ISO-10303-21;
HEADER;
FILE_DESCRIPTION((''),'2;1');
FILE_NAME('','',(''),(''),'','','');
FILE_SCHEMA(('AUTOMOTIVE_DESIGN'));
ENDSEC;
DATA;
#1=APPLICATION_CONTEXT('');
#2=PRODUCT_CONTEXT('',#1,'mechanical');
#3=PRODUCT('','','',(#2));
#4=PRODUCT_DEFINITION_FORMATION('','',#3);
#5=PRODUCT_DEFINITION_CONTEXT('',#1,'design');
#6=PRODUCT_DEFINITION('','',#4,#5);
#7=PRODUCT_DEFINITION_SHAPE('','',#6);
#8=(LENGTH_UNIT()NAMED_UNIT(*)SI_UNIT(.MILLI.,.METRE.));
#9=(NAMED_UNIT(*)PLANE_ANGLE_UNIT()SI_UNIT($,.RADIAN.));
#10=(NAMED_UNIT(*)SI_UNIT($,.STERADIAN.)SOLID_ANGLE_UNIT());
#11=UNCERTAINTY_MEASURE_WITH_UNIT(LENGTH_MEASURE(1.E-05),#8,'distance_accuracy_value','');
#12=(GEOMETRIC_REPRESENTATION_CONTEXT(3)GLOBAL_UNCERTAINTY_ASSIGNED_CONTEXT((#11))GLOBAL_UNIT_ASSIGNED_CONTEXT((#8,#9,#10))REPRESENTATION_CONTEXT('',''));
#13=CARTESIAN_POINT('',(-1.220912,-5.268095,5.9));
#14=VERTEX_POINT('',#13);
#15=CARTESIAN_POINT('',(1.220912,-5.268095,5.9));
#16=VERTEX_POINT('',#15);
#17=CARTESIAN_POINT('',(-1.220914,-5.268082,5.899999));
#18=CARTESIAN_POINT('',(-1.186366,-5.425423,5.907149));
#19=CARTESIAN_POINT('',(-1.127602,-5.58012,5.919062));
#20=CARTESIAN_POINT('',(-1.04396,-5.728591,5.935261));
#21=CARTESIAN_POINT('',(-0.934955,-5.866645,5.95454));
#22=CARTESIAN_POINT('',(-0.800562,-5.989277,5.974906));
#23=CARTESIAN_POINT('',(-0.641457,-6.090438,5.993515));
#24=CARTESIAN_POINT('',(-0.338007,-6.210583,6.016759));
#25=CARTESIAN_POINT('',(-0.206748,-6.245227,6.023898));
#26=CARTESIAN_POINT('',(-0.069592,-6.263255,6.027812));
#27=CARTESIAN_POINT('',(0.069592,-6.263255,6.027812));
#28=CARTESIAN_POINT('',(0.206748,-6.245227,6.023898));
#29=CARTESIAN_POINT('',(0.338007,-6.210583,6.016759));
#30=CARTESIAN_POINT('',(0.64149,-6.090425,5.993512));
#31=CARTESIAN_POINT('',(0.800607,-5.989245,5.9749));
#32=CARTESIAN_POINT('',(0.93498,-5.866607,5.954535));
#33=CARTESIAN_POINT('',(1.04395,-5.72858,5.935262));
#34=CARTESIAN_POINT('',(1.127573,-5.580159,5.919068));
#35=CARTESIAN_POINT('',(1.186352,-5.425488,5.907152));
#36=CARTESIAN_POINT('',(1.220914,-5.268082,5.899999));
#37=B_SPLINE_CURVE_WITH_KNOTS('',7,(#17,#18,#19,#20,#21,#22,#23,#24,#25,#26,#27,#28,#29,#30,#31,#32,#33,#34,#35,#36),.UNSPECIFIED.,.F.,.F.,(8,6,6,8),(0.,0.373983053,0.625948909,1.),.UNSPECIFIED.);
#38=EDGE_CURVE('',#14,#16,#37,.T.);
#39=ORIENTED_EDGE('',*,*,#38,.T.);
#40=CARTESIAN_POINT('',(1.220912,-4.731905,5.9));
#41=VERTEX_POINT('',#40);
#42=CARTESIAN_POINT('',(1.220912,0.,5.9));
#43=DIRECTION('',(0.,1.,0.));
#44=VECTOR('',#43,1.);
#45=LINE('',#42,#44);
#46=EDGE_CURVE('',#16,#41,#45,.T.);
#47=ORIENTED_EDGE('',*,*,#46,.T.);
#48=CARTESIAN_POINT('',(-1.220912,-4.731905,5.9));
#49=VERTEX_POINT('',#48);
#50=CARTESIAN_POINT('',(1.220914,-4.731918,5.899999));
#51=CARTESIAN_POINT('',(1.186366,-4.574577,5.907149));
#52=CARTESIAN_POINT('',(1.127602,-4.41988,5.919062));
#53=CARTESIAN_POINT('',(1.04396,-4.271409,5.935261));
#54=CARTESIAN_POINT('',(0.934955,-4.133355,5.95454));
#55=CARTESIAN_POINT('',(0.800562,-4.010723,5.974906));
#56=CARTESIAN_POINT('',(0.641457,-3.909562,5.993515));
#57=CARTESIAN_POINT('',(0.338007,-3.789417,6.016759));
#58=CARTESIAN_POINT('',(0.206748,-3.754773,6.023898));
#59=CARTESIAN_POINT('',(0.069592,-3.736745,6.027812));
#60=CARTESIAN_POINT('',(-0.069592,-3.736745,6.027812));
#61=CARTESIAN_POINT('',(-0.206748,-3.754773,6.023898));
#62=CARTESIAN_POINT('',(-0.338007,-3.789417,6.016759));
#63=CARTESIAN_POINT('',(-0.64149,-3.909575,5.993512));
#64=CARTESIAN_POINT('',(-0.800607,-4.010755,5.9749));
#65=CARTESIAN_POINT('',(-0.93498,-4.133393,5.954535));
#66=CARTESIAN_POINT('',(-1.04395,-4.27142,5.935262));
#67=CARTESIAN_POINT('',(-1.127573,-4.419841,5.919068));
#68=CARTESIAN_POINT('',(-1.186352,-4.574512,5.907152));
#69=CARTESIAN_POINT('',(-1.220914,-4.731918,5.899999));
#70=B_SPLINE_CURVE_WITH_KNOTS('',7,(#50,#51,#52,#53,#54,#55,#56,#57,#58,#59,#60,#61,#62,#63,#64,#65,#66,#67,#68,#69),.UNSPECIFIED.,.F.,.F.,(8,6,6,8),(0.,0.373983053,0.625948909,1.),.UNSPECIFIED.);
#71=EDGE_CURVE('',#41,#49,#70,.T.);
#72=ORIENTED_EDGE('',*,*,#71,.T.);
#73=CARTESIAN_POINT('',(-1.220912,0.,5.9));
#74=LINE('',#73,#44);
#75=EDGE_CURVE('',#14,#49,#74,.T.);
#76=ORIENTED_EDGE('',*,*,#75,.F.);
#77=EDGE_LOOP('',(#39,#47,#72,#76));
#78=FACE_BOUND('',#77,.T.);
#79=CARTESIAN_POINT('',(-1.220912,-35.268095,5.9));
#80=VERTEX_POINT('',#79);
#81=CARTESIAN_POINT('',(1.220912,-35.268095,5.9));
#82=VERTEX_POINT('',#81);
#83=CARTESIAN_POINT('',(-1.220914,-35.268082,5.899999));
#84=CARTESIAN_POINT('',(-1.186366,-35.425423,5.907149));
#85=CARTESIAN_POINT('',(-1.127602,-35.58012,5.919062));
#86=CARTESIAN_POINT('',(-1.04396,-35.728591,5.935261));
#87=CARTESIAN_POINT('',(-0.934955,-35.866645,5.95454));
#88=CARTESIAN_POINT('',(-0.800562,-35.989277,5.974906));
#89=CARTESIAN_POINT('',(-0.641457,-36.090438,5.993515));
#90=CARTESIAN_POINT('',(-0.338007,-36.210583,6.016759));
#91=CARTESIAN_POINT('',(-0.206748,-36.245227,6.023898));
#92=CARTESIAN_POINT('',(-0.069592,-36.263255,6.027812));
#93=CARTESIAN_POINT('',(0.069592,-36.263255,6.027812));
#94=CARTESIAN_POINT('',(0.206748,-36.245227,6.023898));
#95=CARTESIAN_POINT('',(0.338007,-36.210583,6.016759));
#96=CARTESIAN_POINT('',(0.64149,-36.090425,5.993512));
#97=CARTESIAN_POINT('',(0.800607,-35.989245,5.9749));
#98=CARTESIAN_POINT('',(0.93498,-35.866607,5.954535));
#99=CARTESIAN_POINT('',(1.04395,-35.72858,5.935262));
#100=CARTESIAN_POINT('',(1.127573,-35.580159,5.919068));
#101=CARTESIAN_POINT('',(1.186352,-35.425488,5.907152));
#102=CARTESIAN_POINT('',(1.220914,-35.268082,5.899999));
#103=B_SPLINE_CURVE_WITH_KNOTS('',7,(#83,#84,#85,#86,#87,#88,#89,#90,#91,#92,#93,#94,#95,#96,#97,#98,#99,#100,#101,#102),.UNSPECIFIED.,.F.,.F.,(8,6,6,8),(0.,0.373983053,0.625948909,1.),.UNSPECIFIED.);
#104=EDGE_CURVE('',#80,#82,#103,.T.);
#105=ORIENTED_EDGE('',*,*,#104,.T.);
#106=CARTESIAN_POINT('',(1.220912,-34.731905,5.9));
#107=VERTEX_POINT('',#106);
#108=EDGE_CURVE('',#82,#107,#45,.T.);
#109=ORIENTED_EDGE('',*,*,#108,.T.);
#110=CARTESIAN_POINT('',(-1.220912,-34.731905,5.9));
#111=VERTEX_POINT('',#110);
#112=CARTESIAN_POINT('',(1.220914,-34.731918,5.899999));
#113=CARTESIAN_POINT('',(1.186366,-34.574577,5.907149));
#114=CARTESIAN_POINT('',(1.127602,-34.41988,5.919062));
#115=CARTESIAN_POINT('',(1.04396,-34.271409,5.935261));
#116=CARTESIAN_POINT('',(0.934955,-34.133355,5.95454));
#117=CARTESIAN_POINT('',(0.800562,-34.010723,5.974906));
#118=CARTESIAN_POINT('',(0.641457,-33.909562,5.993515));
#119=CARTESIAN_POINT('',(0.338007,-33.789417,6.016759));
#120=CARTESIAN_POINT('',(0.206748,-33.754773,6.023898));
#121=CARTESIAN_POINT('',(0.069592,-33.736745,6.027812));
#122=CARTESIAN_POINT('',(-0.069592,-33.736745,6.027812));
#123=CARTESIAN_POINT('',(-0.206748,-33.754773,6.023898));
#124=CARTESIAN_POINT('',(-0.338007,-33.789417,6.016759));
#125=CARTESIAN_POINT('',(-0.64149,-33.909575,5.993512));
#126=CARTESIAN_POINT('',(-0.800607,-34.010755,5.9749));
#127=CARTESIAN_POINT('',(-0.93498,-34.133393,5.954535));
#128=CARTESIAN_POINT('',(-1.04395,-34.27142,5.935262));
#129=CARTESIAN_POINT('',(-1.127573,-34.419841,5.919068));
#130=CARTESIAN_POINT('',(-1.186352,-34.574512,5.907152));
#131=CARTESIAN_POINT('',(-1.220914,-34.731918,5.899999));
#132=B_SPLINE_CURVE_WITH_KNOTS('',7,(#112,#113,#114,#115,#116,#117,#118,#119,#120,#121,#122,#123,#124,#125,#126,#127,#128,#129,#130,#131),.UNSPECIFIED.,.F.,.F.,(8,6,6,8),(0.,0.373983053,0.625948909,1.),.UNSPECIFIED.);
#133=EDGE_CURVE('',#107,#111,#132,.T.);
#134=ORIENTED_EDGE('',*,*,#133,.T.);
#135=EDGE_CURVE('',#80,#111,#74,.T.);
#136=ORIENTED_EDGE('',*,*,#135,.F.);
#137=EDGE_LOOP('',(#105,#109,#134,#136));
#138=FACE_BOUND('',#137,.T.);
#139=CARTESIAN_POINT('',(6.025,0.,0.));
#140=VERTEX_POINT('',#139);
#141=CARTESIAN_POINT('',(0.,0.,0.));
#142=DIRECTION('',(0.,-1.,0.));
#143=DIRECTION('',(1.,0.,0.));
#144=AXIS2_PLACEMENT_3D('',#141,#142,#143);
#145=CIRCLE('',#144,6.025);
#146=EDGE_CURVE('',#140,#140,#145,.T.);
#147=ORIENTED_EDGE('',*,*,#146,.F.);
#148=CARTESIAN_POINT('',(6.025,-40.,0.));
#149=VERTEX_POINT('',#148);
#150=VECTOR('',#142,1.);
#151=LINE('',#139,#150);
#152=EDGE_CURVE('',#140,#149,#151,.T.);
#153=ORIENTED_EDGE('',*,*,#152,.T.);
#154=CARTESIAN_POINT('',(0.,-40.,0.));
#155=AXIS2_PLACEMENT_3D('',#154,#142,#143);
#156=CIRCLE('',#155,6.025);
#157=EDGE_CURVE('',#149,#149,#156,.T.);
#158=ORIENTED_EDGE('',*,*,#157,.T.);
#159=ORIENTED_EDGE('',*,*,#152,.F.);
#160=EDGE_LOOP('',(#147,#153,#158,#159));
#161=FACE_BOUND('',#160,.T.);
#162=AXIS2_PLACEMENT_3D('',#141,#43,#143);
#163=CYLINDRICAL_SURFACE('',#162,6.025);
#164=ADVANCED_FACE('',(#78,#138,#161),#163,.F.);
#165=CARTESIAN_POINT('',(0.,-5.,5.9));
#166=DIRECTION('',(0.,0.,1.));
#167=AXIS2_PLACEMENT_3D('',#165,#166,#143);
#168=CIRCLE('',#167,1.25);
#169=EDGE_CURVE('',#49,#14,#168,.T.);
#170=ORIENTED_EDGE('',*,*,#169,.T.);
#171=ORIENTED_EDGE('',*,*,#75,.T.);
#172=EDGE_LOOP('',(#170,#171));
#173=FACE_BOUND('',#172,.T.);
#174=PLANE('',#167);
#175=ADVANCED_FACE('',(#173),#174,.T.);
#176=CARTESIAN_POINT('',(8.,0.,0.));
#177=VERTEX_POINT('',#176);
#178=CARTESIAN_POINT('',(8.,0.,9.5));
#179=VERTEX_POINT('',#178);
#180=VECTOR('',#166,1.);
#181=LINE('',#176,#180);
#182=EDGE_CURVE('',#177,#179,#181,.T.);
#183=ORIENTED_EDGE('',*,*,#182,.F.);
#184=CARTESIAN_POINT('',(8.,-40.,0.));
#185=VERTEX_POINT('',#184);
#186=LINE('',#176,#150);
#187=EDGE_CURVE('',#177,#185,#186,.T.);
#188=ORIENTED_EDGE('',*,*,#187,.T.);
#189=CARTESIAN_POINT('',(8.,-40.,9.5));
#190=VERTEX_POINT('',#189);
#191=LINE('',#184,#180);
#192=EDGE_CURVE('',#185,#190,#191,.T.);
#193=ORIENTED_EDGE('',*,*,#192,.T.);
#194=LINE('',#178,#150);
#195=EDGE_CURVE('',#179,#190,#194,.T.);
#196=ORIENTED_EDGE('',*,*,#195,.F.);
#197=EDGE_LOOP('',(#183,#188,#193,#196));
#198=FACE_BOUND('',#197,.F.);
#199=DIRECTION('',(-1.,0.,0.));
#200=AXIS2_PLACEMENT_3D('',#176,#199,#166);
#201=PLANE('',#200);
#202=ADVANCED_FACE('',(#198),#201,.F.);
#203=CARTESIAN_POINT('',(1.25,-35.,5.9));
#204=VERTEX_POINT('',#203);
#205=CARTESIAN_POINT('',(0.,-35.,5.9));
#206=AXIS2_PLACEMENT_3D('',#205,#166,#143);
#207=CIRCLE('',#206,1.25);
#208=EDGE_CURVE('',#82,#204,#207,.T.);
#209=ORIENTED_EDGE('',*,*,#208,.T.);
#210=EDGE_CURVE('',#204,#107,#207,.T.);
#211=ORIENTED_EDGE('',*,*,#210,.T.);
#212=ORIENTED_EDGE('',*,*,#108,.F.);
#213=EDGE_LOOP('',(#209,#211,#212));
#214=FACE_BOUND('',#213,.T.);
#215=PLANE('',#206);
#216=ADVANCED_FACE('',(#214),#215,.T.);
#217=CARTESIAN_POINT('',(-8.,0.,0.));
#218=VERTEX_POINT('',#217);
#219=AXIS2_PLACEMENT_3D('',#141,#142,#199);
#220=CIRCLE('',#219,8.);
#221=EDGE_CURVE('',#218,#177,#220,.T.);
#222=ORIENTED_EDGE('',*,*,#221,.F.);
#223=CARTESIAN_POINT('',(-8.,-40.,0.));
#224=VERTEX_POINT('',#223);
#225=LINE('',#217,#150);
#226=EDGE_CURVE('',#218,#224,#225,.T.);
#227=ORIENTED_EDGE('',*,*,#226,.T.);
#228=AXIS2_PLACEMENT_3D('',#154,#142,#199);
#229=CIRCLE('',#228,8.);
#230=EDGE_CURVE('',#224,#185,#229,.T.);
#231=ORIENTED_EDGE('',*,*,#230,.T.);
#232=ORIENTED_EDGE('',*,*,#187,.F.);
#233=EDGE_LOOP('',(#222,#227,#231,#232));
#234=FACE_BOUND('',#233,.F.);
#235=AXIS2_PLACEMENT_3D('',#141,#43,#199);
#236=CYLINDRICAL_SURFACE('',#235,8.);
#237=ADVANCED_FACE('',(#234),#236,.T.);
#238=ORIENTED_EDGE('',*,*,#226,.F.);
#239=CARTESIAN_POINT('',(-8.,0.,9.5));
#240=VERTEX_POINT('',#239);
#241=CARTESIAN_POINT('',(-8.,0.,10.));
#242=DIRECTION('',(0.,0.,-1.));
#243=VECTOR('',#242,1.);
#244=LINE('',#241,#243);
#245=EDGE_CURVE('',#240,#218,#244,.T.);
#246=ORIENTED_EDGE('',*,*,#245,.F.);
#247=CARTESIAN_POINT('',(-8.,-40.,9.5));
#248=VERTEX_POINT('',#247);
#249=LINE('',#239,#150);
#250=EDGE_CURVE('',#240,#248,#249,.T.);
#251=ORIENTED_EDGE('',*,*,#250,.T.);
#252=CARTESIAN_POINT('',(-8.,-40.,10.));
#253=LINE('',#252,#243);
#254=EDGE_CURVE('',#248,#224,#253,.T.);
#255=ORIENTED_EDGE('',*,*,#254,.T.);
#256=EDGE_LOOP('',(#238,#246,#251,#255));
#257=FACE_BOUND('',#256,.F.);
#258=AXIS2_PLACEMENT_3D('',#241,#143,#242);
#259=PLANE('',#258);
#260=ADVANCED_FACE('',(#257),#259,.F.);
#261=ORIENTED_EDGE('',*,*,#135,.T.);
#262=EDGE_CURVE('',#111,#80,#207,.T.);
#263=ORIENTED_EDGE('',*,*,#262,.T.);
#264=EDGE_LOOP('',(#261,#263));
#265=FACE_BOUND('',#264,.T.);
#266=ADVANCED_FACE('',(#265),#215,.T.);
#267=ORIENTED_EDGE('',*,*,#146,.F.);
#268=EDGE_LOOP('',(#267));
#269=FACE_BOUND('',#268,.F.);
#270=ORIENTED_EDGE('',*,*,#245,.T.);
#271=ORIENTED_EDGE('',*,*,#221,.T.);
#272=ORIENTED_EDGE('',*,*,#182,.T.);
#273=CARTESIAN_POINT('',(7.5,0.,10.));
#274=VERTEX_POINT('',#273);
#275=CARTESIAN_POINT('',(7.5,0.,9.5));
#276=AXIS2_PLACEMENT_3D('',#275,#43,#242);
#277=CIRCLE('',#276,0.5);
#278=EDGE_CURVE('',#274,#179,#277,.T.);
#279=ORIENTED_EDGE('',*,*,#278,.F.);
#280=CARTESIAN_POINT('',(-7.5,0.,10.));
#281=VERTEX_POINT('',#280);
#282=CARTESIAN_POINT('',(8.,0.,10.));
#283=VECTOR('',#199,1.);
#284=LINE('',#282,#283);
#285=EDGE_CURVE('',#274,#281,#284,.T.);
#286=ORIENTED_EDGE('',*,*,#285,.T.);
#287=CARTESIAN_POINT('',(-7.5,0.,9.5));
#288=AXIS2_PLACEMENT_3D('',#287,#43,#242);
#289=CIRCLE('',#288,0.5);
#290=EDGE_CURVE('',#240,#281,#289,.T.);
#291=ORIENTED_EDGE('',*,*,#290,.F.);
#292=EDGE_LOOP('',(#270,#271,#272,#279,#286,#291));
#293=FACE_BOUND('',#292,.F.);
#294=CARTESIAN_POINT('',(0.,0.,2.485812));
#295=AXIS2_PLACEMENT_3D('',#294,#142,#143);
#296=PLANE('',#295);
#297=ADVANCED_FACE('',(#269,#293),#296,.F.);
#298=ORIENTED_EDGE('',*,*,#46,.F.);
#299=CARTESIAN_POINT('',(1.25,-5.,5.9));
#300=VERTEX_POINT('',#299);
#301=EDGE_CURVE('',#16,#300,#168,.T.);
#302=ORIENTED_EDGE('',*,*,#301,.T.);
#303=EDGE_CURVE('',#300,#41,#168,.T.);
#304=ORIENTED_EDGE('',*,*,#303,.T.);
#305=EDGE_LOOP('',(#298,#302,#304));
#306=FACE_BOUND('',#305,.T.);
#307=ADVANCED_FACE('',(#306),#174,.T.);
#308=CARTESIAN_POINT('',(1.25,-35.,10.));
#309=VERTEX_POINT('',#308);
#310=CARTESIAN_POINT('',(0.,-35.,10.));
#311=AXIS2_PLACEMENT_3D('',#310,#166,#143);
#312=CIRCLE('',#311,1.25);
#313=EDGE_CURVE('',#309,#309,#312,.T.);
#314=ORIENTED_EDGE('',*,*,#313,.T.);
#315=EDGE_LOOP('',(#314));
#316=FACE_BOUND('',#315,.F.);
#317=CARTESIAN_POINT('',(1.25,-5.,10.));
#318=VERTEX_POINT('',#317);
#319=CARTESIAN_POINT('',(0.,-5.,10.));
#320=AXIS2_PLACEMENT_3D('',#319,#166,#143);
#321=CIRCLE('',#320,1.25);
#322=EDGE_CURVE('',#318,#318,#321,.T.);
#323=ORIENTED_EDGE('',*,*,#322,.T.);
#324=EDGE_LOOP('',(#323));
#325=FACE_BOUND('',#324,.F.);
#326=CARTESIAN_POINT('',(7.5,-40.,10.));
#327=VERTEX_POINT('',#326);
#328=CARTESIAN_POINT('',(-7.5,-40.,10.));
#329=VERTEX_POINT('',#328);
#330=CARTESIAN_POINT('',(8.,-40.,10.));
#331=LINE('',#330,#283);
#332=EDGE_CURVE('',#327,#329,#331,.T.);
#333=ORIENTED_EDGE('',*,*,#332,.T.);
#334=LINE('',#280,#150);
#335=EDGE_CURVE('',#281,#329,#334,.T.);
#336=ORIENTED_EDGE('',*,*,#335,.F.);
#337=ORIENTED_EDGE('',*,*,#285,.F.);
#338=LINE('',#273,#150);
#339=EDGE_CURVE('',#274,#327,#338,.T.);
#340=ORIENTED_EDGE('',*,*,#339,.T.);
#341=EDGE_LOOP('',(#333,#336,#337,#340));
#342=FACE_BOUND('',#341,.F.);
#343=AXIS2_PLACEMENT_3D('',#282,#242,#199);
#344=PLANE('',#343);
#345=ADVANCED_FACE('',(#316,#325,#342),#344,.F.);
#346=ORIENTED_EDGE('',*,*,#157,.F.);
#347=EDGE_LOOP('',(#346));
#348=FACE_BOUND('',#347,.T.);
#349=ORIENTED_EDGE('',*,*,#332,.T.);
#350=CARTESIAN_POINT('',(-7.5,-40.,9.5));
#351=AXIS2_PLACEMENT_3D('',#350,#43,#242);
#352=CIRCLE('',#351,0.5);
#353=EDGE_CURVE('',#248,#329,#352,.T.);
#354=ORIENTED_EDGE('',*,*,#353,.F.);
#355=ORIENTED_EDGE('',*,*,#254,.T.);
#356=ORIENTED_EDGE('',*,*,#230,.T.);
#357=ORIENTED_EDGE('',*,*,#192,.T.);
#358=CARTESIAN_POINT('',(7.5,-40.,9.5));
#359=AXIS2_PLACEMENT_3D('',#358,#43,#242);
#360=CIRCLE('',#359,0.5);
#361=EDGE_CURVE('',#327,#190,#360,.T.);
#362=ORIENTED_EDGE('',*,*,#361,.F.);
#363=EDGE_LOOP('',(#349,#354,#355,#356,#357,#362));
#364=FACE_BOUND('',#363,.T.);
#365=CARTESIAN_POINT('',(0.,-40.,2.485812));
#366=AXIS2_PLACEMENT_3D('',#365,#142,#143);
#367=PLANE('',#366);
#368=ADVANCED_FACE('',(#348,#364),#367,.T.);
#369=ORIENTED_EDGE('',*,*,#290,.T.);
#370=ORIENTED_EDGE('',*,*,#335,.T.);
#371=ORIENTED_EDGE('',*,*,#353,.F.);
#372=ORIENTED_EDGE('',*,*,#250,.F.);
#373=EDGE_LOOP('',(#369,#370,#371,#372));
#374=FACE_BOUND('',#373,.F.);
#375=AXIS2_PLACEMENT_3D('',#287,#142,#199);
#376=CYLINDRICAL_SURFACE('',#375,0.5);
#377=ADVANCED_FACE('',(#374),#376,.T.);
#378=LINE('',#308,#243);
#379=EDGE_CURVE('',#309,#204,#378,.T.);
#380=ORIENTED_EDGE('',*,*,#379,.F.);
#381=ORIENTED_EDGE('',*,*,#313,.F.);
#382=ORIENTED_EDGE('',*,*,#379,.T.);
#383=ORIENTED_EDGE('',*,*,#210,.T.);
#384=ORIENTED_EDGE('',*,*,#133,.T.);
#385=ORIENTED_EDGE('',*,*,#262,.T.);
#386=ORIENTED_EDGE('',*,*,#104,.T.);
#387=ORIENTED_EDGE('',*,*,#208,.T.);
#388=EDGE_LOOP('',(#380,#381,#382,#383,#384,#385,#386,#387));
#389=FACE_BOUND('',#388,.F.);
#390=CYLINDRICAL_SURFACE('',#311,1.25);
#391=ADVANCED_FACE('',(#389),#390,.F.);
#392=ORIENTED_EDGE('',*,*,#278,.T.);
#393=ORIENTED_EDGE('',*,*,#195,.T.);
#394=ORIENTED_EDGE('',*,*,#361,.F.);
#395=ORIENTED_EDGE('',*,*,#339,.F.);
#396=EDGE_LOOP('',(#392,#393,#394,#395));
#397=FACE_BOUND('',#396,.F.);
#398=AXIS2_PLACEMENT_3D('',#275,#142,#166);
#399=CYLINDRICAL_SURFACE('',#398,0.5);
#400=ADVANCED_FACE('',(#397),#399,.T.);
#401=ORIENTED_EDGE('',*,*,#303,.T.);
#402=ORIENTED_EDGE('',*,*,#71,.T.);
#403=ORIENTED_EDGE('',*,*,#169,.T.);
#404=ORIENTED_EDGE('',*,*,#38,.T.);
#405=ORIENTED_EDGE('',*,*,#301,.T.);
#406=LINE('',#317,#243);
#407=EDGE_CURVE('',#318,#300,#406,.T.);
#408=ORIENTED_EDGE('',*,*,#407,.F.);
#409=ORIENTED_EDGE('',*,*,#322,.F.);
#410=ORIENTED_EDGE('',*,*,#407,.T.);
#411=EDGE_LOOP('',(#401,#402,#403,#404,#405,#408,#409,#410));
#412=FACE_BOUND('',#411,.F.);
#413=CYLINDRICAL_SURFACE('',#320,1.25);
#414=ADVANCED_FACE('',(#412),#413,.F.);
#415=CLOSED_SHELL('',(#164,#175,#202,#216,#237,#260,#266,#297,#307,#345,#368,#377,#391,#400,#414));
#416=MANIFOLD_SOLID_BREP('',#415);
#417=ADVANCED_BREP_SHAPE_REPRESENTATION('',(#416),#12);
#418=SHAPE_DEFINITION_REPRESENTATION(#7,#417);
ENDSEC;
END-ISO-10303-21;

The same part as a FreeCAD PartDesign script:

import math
import FreeCAD as App
import Part
import Sketcher


def edges_at(feature, points):
    """Names of the edges that pass closest to the given points."""
    edges = feature.Shape.Edges
    near = lambda p: min(range(len(edges)), key=lambda i: edges[i].distToShape(Part.Vertex(*p))[0])
    return sorted({f"Edge{near(p) + 1}" for p in points})

doc = App.newDocument("Part")
body = doc.addObject("PartDesign::Body", "Body")

# Sketch on XZ plane
sketch1 = doc.addObject("Sketcher::SketchObject", "Sketch")
body.addObject(sketch1)
sketch1.AttachmentSupport = (doc.XZ_Plane, [""])
sketch1.MapMode = "FlatFace"
sketch1.addGeometry([
    Part.LineSegment(App.Vector(-8, 10, 0), App.Vector(-8, 0, 0)),  # 0
    Part.ArcOfCircle(Part.Circle(App.Vector(0, 0, 0), App.Vector(0, 0, 1), 8), math.radians(180), math.radians(360)),  # 1
    Part.LineSegment(App.Vector(8, 0, 0), App.Vector(8, 10, 0)),  # 2
    Part.LineSegment(App.Vector(8, 10, 0), App.Vector(-8, 10, 0)),  # 3
    Part.Circle(App.Vector(0, 0, 0), App.Vector(0, 0, 1), 6.025),  # 4
], False)
sketch1.addConstraint([
    Sketcher.Constraint("Tangent", 0, 2, 1, 1),
    Sketcher.Constraint("Tangent", 1, 2, 2, 1),
    Sketcher.Constraint("Coincident", 2, 2, 3, 1),
    Sketcher.Constraint("Coincident", 3, 2, 0, 1),
    Sketcher.Constraint("Vertical", 0),
    Sketcher.Constraint("Vertical", 2),
    Sketcher.Constraint("Horizontal", 3),
    Sketcher.Constraint("Coincident", 1, 3, -1, 1),
    Sketcher.Constraint("Coincident", 4, 3, -1, 1),
    Sketcher.Constraint("Radius", 1, 8.0),
    Sketcher.Constraint("Diameter", 4, 12.05),
    Sketcher.Constraint("DistanceY", 0, 2, 0, 1, 10.0),
])
pad1 = doc.addObject("PartDesign::Pad", "Pad")
body.addObject(pad1)
pad1.Profile = sketch1
pad1.Length = 40

# Sketch on XY plane
sketch2 = doc.addObject("Sketcher::SketchObject", "Sketch001")
body.addObject(sketch2)
sketch2.AttachmentSupport = (doc.XY_Plane, [""])
sketch2.MapMode = "FlatFace"
sketch2.AttachmentOffset = App.Placement(App.Vector(0, 0, 10), App.Rotation())
sketch2.addGeometry([
    Part.Circle(App.Vector(0, -5, 0), App.Vector(0, 0, 1), 1.25),
    Part.Circle(App.Vector(0, -35, 0), App.Vector(0, 0, 1), 1.25),
], False)
sketch2.addConstraint([
    Sketcher.Constraint("Equal", 0, 1),
    Sketcher.Constraint("PointOnObject", 0, 3, -2),
    Sketcher.Constraint("PointOnObject", 1, 3, -2),
    Sketcher.Constraint("Diameter", 0, 2.5),
    Sketcher.Constraint("DistanceY", 0, 3, -1, 1, 5.0),
    Sketcher.Constraint("DistanceY", 1, 3, -1, 1, 35.0),
])
pocket1 = doc.addObject("PartDesign::Pocket", "Pocket")
body.addObject(pocket1)
pocket1.Profile = sketch2
pocket1.Length = 4.1
doc.recompute()

fillet = doc.addObject("PartDesign::Fillet", "Fillet")
body.addObject(fillet)
fillet.Base = (pocket1, edges_at(pocket1, [(-8, -20, 10), (8, -20, 10)]))
fillet.Radius = 0.5

doc.recompute()
